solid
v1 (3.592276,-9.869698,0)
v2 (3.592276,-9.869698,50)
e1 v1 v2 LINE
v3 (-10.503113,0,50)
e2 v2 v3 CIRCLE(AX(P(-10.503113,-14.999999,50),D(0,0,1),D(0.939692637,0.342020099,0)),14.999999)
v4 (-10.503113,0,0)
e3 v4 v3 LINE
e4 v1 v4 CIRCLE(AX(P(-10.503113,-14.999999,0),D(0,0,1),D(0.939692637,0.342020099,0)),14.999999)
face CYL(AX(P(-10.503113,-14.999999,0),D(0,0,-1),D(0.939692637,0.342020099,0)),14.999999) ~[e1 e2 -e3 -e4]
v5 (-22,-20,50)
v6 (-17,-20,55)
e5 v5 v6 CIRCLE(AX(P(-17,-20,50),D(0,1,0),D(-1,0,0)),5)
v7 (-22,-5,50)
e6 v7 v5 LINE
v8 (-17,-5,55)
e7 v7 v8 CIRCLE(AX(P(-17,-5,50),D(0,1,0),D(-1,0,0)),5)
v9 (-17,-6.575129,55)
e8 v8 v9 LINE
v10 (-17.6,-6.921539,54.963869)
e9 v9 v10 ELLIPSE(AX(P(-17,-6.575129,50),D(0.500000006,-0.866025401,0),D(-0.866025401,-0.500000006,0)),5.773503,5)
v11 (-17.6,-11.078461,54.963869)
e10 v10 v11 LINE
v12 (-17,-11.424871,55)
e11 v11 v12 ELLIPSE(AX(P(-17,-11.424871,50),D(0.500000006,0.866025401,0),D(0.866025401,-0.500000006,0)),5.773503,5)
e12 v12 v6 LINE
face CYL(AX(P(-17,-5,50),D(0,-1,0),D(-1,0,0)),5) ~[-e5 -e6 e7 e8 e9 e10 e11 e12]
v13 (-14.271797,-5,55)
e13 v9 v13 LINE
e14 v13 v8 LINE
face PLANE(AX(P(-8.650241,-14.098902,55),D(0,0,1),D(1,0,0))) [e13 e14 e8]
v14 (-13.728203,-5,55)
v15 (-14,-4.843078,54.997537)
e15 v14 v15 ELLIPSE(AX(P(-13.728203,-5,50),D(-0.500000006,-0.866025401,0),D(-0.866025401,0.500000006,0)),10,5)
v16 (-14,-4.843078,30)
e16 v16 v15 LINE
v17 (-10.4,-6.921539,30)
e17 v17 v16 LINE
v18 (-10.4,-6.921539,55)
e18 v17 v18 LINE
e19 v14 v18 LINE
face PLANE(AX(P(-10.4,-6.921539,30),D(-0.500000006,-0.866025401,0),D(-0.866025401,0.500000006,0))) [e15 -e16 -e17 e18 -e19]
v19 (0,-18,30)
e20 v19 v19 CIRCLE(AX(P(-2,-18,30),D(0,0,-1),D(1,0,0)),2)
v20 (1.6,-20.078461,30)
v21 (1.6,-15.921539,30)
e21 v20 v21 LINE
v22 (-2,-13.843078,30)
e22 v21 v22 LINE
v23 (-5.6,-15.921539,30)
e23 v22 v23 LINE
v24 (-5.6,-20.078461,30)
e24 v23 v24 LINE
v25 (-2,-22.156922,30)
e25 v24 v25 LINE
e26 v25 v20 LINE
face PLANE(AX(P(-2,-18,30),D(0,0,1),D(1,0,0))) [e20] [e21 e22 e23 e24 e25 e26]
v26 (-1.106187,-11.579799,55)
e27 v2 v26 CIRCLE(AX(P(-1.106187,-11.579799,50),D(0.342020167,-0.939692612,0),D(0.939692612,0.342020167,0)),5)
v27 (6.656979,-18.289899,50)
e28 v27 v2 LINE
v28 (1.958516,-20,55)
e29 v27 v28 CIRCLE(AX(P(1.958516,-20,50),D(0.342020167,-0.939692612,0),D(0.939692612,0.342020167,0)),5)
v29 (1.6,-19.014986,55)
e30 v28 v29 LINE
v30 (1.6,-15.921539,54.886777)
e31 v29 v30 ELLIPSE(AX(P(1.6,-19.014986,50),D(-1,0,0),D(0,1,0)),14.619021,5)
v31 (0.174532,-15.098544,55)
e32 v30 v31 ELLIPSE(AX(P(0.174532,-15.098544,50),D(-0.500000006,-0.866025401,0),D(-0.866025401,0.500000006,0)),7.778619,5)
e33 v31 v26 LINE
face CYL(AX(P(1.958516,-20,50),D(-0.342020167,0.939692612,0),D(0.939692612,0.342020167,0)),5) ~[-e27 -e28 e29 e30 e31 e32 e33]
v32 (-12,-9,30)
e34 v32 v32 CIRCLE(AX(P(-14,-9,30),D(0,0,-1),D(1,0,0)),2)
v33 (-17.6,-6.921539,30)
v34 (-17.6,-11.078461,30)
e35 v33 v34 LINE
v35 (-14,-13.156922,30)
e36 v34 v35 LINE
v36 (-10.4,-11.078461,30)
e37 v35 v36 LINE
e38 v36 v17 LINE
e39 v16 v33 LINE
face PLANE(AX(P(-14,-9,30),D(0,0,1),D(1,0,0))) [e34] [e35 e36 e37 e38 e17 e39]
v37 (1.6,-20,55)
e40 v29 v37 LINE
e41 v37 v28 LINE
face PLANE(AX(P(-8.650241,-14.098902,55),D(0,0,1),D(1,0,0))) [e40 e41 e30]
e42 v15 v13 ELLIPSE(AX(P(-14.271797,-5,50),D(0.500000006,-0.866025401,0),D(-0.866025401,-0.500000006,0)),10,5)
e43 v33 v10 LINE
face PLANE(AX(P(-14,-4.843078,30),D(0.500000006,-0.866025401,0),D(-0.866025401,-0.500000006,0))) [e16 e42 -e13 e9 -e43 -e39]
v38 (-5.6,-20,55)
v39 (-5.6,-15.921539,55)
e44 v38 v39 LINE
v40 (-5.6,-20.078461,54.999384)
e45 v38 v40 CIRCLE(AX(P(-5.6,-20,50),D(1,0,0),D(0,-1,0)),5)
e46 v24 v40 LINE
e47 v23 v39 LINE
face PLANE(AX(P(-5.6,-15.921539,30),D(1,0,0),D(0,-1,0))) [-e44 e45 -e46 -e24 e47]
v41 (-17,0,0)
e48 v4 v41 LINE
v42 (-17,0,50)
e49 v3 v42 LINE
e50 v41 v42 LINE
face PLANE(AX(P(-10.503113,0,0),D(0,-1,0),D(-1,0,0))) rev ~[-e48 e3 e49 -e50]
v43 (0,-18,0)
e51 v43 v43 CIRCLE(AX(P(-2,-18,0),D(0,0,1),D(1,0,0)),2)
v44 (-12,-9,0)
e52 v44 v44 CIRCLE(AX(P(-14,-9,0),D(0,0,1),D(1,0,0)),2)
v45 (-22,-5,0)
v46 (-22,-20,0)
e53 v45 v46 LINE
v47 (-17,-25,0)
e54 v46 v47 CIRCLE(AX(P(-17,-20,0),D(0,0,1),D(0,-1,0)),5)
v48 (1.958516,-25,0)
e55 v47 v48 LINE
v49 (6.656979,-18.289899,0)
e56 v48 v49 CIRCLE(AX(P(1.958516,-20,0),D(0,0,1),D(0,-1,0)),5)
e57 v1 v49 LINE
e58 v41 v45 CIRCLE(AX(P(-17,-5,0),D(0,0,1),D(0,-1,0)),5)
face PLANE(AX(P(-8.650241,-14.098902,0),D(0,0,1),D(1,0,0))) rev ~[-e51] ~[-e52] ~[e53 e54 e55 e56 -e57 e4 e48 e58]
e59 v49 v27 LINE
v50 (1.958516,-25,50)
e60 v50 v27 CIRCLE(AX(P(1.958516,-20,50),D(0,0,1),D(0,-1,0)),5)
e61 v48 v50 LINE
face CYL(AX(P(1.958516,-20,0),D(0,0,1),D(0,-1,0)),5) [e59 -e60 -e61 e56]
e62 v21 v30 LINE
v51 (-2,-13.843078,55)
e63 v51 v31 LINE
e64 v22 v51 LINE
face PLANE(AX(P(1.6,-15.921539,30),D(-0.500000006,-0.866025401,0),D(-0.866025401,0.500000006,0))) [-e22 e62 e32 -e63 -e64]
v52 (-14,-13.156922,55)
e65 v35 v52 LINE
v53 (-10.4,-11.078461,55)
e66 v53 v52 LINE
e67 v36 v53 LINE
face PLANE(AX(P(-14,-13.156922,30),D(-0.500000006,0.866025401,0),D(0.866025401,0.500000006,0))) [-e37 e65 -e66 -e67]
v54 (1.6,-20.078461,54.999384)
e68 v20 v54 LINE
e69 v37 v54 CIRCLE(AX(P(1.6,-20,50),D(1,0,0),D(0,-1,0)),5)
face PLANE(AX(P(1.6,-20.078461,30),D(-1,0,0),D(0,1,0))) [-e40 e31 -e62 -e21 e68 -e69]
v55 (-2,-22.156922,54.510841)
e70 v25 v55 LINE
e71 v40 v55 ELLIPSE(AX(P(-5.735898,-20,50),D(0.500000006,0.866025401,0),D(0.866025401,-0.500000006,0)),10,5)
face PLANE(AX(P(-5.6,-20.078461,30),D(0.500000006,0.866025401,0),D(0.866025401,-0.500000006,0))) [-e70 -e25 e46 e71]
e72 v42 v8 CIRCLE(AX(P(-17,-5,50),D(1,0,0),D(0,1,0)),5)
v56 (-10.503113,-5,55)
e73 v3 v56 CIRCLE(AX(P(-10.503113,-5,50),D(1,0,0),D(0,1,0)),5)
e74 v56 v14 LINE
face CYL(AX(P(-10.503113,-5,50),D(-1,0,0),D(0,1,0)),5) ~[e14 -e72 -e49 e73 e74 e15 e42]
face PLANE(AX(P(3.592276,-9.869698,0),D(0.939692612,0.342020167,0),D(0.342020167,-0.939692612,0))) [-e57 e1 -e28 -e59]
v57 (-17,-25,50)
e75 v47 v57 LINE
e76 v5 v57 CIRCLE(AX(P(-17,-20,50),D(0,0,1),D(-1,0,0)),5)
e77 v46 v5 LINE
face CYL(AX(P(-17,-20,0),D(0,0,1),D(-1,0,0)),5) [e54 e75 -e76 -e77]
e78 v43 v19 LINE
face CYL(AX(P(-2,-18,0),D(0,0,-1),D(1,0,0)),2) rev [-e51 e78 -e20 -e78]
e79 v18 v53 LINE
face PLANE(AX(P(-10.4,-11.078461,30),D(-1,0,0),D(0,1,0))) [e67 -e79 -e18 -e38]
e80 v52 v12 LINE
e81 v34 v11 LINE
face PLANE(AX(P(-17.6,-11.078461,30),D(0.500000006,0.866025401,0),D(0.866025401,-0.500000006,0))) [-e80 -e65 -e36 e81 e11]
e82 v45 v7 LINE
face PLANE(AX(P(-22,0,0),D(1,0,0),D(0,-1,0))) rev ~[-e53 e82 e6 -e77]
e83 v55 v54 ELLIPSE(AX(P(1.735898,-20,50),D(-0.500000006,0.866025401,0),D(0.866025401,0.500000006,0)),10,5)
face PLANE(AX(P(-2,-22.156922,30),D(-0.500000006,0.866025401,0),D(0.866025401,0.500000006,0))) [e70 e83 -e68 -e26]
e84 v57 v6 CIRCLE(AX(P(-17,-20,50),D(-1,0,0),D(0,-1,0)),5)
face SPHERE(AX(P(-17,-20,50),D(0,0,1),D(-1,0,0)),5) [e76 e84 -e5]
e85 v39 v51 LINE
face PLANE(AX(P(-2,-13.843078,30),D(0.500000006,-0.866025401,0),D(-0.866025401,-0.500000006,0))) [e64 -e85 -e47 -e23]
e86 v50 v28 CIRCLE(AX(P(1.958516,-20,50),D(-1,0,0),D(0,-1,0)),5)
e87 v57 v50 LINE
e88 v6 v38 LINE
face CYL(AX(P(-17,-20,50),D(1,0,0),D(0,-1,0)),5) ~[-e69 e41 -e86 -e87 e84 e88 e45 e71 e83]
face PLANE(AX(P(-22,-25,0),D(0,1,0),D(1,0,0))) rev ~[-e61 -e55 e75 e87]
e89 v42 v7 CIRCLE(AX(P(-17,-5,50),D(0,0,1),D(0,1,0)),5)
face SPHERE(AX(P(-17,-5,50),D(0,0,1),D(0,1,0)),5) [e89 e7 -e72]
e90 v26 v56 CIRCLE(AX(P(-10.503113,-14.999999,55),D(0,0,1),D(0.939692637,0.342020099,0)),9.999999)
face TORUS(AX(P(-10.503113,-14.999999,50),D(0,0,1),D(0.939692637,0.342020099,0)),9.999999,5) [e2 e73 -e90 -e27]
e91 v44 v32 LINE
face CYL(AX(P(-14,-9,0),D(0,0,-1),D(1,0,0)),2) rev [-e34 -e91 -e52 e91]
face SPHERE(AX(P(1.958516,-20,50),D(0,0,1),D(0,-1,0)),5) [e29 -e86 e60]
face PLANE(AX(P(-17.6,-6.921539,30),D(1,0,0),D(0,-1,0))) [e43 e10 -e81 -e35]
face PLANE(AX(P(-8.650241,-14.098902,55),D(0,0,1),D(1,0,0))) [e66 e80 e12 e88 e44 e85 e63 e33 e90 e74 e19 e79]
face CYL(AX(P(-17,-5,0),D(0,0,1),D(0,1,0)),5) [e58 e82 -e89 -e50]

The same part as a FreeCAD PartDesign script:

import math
import FreeCAD as App
import Part
import Sketcher
Q = App.Units.Quantity


def edges_at(feature, points):
    """Names of the edges that pass closest to the given points."""
    edges = feature.Shape.Edges
    near = lambda p: min(range(len(edges)), key=lambda i: edges[i].distToShape(Part.Vertex(*p))[0])
    return sorted({f"Edge{near(p) + 1}" for p in points})

doc = App.newDocument("Part")
body = doc.addObject("PartDesign::Body", "Body")

# Sketch on XY plane
sketch1 = body.newObject("Sketcher::SketchObject", "Sketch")
sketch1.AttachmentSupport = (doc.getObject("XY_Plane"), [""])
sketch1.MapMode = "FlatFace"
sketch1.addGeometry([
    Part.LineSegment(App.Vector(-10.503113, 0, 0), App.Vector(-22, 0, 0)),  # 0
    Part.LineSegment(App.Vector(-22, 0, 0), App.Vector(-22, -25, 0)),  # 1
    Part.LineSegment(App.Vector(-22, -25, 0), App.Vector(9.099256, -25, 0)),  # 2
    Part.LineSegment(App.Vector(9.099256, -25, 0), App.Vector(3.592276, -9.869698, 0)),  # 3
    Part.ArcOfCircle(Part.Circle(App.Vector(-10.503113, -14.999999, 0), App.Vector(0, 0, 1), 14.999999), math.radians(19.999997), math.radians(90.000001)),  # 4
], False)
sketch1.addConstraint([
    Sketcher.Constraint("Coincident", 0, 2, 1, 1),
    Sketcher.Constraint("Coincident", 1, 2, 2, 1),
    Sketcher.Constraint("Coincident", 2, 2, 3, 1),
    Sketcher.Constraint("Tangent", 3, 2, 4, 1),
    Sketcher.Constraint("Tangent", 4, 2, 0, 1),
    Sketcher.Constraint("Horizontal", 0),
    Sketcher.Constraint("Vertical", 1),
    Sketcher.Constraint("Horizontal", 2),
    Sketcher.Constraint("PointOnObject", 0, 2, -1),
    Sketcher.Constraint("Radius", 4, Q("14.999999 mm")),
    Sketcher.Constraint("DistanceY", 1, 2, 1, 1, Q("25 mm")),
    Sketcher.Constraint("Angle", 3, Q("110.000001 deg")),
    Sketcher.Constraint("DistanceX", 0, 2, -1, 1, Q("22 mm")),
    Sketcher.Constraint("DistanceX", 0, 2, 0, 1, Q("11.496887 mm")),
])
pad1 = body.newObject("PartDesign::Pad", "Pad")
pad1.Profile = sketch1
pad1.Length = 55
doc.recompute()

fillet = body.newObject("PartDesign::Fillet", "Fillet")
fillet.Base = (pad1, edges_at(pad1, [(9.099, -25, 27.5), (-22, -25, 27.5), (-22, 0, 27.5)]))
fillet.Radius = 5
doc.recompute()

fillet2 = body.newObject("PartDesign::Fillet", "Fillet001")
fillet2.Base = (fillet, edges_at(fillet, [
    (-13.752, 0, 55),
    (-20.536, -1.464, 55),
    (-1.899, -2.713, 55),
    (-22, -12.5, 55),
    (5.125, -14.08, 55),
    (-20.536, -23.536, 55),
    (6.054, -22.868, 55),
    (-7.521, -25, 55),
]))
fillet2.Radius = 5

# Sketch on XY plane
sketch2 = body.newObject("Sketcher::SketchObject", "Sketch001")
sketch2.AttachmentSupport = (doc.getObject("XY_Plane"), [""])
sketch2.MapMode = "FlatFace"
sketch2.addGeometry([
    Part.Circle(App.Vector(-2, -18, 0), App.Vector(0, 0, 1), 2),
    Part.Circle(App.Vector(-14, -9, 0), App.Vector(0, 0, 1), 2),
], False)
sketch2.addConstraint([
    Sketcher.Constraint("Equal", 0, 1),
    Sketcher.Constraint("Diameter", 0, Q("4 mm")),
    Sketcher.Constraint("DistanceX", 0, 3, -1, 1, Q("2 mm")),
    Sketcher.Constraint("DistanceY", 0, 3, -1, 1, Q("18 mm")),
    Sketcher.Constraint("DistanceX", 1, 3, -1, 1, Q("14 mm")),
    Sketcher.Constraint("DistanceY", 1, 3, -1, 1, Q("9 mm")),
])
pocket1 = body.newObject("PartDesign::Pocket", "Pocket")
pocket1.Profile = sketch2
pocket1.Type = "ThroughAll"
pocket1.Reversed = True

# Sketch on XY plane
sketch3 = body.newObject("Sketcher::SketchObject", "Sketch002")
sketch3.AttachmentSupport = (doc.getObject("XY_Plane"), [""])
sketch3.MapMode = "FlatFace"
sketch3.AttachmentOffset = App.Placement(App.Vector(0, 0, 30), App.Rotation())
sketch3.addGeometry([
    Part.LineSegment(App.Vector(1.6, -15.921539, 0), App.Vector(-2, -13.843078, 0)),  # 0
    Part.LineSegment(App.Vector(-2, -13.843078, 0), App.Vector(-5.6, -15.921539, 0)),  # 1
    Part.LineSegment(App.Vector(-5.6, -15.921539, 0), App.Vector(-5.6, -20.078461, 0)),  # 2
    Part.LineSegment(App.Vector(-5.6, -20.078461, 0), App.Vector(-2, -22.156922, 0)),  # 3
    Part.LineSegment(App.Vector(-2, -22.156922, 0), App.Vector(1.6, -20.078461, 0)),  # 4
    Part.LineSegment(App.Vector(1.6, -20.078461, 0), App.Vector(1.6, -15.921539, 0)),  # 5
    Part.LineSegment(App.Vector(-10.4, -6.921539, 0), App.Vector(-14, -4.843078, 0)),  # 6
    Part.LineSegment(App.Vector(-14, -4.843078, 0), App.Vector(-17.6, -6.921539, 0)),  # 7
    Part.LineSegment(App.Vector(-17.6, -6.921539, 0), App.Vector(-17.6, -11.078461, 0)),  # 8
    Part.LineSegment(App.Vector(-17.6, -11.078461, 0), App.Vector(-14, -13.156922, 0)),  # 9
    Part.LineSegment(App.Vector(-14, -13.156922, 0), App.Vector(-10.4, -11.078461, 0)),  # 10
    Part.LineSegment(App.Vector(-10.4, -11.078461, 0), App.Vector(-10.4, -6.921539, 0)),  # 11
], False)
sketch3.addConstraint([
    Sketcher.Constraint("Coincident", 0, 2, 1, 1),
    Sketcher.Constraint("Coincident", 1, 2, 2, 1),
    Sketcher.Constraint("Coincident", 2, 2, 3, 1),
    Sketcher.Constraint("Coincident", 3, 2, 4, 1),
    Sketcher.Constraint("Coincident", 4, 2, 5, 1),
    Sketcher.Constraint("Coincident", 5, 2, 0, 1),
    Sketcher.Constraint("Coincident", 6, 2, 7, 1),
    Sketcher.Constraint("Coincident", 7, 2, 8, 1),
    Sketcher.Constraint("Coincident", 8, 2, 9, 1),
    Sketcher.Constraint("Coincident", 9, 2, 10, 1),
    Sketcher.Constraint("Coincident", 10, 2, 11, 1),
    Sketcher.Constraint("Coincident", 11, 2, 6, 1),
    Sketcher.Constraint("Vertical", 2),
    Sketcher.Constraint("Vertical", 5),
    Sketcher.Constraint("Vertical", 8),
    Sketcher.Constraint("Vertical", 11),
    Sketcher.Constraint("Parallel", 0, 3),
    Sketcher.Constraint("Parallel", 1, 4),
    Sketcher.Constraint("Parallel", 3, 6),
    Sketcher.Constraint("Parallel", 4, 7),
    Sketcher.Constraint("Parallel", 6, 9),
    Sketcher.Constraint("Parallel", 7, 10),
    Sketcher.Constraint("Horizontal", 2, 2, 4, 2),
    Sketcher.Constraint("Horizontal", 1, 2, 5, 2),
    Sketcher.Constraint("Horizontal", 8, 2, 10, 2),
    Sketcher.Constraint("Horizontal", 7, 2, 11, 2),
    Sketcher.Constraint("Vertical", 0, 2, 3, 2),
    Sketcher.Constraint("Equal", 5, 8),
    Sketcher.Constraint("Equal", 4, 6),
    Sketcher.Constraint("Angle", 0, Q("150 deg")),
    Sketcher.Constraint("DistanceX", 0, 2, -1, 1, Q("2 mm")),
    Sketcher.Constraint("DistanceX", 6, 2, -1, 1, Q("14 mm")),
    Sketcher.Constraint("DistanceY", 0, 2, 6, 2, Q("9 mm")),
    Sketcher.Constraint("DistanceX", 1, 2, -1, 1, Q("5.6 mm")),
    Sketcher.Constraint("DistanceY", 2, 2, 2, 1, Q("4.156922 mm")),
    Sketcher.Constraint("DistanceY", 1, 2, -1, 1, Q("15.921539 mm")),
])
pocket2 = body.newObject("PartDesign::Pocket", "Pocket001")
pocket2.Profile = sketch3
pocket2.Length = 70
pocket2.Reversed = True

doc.recompute()
